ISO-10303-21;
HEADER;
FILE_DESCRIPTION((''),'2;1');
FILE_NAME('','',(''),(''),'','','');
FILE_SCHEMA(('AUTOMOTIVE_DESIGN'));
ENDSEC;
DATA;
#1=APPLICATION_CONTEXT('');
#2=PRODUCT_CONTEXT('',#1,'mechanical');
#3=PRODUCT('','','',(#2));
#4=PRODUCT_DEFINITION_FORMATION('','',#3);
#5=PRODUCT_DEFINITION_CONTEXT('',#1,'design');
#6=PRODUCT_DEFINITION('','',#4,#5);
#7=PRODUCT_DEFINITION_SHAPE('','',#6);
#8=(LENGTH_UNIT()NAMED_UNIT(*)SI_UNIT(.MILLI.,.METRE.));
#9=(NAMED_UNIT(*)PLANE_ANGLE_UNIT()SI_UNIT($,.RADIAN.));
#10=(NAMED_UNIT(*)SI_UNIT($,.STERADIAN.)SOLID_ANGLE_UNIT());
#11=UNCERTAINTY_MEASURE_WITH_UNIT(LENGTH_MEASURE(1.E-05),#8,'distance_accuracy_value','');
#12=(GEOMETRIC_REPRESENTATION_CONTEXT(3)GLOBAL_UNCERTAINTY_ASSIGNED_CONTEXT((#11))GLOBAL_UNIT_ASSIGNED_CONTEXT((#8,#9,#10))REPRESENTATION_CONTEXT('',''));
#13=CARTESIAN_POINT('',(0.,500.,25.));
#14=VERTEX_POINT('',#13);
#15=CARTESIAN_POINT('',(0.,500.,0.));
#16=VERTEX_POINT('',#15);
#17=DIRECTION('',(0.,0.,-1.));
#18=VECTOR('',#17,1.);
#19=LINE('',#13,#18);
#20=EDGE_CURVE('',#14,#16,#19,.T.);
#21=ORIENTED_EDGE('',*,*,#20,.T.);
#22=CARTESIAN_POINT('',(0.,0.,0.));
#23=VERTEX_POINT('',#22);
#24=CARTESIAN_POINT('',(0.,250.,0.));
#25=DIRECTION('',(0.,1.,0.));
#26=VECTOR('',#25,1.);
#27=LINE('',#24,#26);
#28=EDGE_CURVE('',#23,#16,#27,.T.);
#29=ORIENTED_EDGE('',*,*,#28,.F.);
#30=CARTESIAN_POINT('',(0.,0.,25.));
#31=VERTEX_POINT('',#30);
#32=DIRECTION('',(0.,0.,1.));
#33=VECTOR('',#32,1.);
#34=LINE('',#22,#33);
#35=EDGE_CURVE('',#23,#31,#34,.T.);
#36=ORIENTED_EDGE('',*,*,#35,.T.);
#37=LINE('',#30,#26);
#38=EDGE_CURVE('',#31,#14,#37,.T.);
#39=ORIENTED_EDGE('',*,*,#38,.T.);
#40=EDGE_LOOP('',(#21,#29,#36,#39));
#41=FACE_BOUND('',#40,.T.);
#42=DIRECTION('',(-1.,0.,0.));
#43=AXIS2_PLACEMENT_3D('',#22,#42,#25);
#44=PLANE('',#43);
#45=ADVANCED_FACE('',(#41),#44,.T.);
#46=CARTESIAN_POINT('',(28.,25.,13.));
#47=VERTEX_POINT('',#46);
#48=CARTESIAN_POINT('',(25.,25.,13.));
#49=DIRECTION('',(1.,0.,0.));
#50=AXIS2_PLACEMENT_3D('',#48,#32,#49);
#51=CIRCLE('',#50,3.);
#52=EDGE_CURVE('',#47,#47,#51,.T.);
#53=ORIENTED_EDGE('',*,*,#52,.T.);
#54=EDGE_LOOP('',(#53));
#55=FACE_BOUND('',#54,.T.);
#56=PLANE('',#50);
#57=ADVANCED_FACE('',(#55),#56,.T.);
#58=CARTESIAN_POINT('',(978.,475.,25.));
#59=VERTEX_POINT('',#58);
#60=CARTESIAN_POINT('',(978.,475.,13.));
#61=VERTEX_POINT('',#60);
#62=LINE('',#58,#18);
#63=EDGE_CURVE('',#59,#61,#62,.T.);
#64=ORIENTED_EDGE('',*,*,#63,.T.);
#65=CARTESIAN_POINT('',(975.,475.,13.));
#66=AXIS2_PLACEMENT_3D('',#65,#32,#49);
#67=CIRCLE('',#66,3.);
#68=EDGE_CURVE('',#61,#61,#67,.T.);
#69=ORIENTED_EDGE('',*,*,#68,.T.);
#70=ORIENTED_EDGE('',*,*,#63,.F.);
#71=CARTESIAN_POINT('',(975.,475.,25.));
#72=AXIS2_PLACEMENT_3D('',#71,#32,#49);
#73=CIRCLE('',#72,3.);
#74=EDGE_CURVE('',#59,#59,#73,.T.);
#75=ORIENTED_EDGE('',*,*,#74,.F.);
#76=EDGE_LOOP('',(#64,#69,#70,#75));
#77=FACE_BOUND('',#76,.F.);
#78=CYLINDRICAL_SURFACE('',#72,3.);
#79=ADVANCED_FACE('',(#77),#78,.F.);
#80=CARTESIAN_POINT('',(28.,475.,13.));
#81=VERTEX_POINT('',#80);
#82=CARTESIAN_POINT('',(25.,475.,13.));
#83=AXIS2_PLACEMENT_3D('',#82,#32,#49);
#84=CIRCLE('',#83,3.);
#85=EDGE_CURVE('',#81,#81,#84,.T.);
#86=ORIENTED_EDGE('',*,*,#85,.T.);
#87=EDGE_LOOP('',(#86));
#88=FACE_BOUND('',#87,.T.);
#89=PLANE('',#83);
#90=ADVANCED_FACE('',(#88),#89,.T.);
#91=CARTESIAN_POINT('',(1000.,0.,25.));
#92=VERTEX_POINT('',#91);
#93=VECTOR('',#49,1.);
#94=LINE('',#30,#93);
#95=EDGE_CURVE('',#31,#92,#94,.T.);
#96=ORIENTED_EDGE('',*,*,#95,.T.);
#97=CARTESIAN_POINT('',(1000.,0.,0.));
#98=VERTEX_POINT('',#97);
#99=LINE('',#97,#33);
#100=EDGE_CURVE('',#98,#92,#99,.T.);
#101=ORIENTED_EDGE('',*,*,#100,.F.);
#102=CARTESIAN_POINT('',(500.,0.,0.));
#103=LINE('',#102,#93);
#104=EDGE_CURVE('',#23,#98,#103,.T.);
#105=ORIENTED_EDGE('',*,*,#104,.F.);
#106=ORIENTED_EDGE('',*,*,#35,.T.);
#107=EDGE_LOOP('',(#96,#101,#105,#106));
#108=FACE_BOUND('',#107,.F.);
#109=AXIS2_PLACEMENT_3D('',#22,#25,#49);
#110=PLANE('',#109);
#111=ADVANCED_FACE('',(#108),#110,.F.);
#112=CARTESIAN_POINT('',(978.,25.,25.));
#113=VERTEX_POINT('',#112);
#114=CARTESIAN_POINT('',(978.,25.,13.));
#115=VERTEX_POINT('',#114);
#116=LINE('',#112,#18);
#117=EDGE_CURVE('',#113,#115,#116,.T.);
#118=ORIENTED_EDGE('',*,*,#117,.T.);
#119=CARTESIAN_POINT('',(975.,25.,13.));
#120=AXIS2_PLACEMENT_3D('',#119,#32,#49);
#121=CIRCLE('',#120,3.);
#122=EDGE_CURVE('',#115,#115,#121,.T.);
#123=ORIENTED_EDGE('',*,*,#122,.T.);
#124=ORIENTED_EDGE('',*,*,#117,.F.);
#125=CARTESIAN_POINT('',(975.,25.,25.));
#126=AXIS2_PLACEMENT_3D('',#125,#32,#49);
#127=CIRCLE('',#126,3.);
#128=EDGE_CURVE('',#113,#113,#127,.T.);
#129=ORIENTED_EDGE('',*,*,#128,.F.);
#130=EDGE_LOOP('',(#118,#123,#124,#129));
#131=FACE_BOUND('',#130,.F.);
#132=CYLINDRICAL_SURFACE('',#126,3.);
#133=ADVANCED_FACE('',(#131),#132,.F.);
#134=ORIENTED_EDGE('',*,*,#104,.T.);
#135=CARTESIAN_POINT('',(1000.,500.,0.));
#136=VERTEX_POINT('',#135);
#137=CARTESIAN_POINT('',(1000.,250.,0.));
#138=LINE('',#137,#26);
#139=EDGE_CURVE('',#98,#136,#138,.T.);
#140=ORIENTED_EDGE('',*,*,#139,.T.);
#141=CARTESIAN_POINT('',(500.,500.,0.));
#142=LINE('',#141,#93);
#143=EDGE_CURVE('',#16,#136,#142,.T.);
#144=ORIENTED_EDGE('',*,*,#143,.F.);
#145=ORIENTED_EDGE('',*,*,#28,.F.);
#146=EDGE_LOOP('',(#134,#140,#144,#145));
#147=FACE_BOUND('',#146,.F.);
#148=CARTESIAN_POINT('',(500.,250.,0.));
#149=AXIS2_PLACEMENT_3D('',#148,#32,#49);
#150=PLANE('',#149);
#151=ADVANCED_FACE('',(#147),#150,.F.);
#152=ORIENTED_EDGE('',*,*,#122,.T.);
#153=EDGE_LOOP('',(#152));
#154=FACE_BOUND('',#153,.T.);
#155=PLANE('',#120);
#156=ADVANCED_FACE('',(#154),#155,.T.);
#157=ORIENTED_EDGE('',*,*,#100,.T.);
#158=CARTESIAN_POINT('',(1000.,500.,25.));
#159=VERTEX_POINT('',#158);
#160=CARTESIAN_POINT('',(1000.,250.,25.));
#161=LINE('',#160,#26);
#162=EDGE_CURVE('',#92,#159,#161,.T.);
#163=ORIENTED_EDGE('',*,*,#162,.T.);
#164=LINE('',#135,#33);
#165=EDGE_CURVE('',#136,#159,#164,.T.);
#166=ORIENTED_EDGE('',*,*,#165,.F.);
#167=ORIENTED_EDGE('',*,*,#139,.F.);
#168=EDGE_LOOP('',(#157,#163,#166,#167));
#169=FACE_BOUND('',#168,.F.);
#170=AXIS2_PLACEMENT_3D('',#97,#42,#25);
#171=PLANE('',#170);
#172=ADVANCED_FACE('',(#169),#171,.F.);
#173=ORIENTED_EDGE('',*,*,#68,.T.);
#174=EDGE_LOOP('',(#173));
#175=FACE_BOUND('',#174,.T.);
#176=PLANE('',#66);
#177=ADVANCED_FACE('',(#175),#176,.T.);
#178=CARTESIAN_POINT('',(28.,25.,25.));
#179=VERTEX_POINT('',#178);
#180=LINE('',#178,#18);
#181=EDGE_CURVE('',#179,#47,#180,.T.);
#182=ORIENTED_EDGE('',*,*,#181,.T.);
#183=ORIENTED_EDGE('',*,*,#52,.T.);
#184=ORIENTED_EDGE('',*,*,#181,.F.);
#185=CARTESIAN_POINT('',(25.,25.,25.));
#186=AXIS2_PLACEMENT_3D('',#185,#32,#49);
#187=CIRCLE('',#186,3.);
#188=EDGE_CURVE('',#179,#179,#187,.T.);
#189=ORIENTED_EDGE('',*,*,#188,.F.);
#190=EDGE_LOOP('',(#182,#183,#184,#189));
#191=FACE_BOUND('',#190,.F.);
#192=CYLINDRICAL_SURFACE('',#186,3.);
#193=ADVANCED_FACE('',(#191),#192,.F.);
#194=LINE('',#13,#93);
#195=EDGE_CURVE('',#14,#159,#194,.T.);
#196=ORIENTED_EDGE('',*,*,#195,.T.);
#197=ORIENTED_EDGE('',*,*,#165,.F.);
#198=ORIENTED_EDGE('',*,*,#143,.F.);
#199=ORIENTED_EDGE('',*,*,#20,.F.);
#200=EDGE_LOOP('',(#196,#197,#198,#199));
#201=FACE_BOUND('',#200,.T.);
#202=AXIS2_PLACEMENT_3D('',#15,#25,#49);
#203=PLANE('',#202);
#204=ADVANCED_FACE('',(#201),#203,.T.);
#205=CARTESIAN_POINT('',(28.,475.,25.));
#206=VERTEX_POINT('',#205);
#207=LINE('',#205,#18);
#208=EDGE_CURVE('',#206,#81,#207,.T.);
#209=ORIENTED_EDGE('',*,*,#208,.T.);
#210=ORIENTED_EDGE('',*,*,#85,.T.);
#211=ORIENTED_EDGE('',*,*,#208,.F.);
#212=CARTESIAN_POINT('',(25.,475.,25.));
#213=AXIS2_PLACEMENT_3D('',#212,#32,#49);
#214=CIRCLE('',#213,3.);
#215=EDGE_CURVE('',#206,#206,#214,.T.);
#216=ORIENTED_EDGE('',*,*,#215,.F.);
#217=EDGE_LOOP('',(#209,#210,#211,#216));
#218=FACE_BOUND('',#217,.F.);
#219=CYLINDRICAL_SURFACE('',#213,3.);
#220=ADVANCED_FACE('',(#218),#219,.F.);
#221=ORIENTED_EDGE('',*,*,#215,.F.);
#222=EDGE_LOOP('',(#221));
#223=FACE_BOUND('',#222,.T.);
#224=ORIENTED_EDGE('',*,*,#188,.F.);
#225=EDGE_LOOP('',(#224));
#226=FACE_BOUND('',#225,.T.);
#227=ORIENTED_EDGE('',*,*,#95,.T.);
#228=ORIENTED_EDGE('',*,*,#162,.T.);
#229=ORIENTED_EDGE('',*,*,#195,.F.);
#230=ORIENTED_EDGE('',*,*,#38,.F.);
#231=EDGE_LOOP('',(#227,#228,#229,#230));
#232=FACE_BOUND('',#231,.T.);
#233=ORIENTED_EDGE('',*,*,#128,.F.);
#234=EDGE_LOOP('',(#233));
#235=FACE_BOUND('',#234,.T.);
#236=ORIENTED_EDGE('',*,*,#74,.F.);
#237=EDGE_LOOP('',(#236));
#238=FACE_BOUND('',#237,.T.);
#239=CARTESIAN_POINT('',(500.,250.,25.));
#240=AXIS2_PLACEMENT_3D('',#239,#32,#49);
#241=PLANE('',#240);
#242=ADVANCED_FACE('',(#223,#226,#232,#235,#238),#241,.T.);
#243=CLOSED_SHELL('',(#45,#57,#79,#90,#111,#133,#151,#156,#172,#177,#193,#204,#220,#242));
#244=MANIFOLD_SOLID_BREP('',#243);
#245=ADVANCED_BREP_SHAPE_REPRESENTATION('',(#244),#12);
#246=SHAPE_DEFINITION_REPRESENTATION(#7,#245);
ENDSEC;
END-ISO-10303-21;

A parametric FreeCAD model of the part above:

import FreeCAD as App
import Part
import Sketcher

V = App.Vector

doc = App.newDocument("Part")
params = doc.addObject("Spreadsheet::Sheet", "Params")
for row, (alias, value) in enumerate([
    ("sketch1_width", "1000 mm"),
    ("sketch1_height", "500 mm"),
    ("pad1_length", "25 mm"),
    ("sketch2_width", "50 mm"),
    ("pad2_length", "24 mm"),
    ("sketch3_diameter", "6 mm"),
    ("pocket1_length", "12 mm"),
    ("sketch4_diameter", "6 mm"),
    ("pocket2_length", "12 mm"),
], start=1):
    params.set(f"A{row}", alias)
    params.set(f"B{row}", "=" + value)
    params.setAlias(f"B{row}", alias)

body = doc.addObject("PartDesign::Body", "Body")

sketch1 = body.newObject("Sketcher::SketchObject", "Sketch")
sketch1.AttachmentSupport = (doc.getObject("XY_Plane"), [""])
sketch1.MapMode = "FlatFace"
sketch1.addGeometry([
    Part.LineSegment(V(0, 500, 0), V(0, 0, 0)),
    Part.LineSegment(V(0, 0, 0), V(1000, 0, 0)),
    Part.LineSegment(V(1000, 0, 0), V(1000, 500, 0)),
    Part.LineSegment(V(1000, 500, 0), V(0, 500, 0)),
], False)
sketch1.addConstraint([
    Sketcher.Constraint("Coincident", 0, 2, 1, 1),
    Sketcher.Constraint("Coincident", 1, 2, 2, 1),
    Sketcher.Constraint("Coincident", 2, 2, 3, 1),
    Sketcher.Constraint("Coincident", 3, 2, 0, 1),
    Sketcher.Constraint("Vertical", 0),
    Sketcher.Constraint("Horizontal", 1),
    Sketcher.Constraint("Vertical", 2),
    Sketcher.Constraint("Horizontal", 3),
    Sketcher.Constraint("Coincident", 0, 2, -1, 1),
    Sketcher.Constraint("DistanceX", 1, 1, 1, 2, 1000.0),
    Sketcher.Constraint("DistanceY", 0, 2, 0, 1, 500.0),
])
sketch1.setExpression("Constraints[9]", "Params.sketch1_width")
sketch1.setExpression("Constraints[10]", "Params.sketch1_height")
pad1 = body.newObject("PartDesign::Pad", "Pad")
pad1.Profile = sketch1
pad1.setExpression("Length", "Params.pad1_length")

sketch2 = body.newObject("Sketcher::SketchObject", "Sketch001")
sketch2.AttachmentSupport = (doc.getObject("XY_Plane"), [""])
sketch2.MapMode = "FlatFace"
sketch2.AttachmentOffset = App.Placement(V(0, 0, 25), App.Rotation())
sketch2.addGeometry([
    Part.LineSegment(V(0, 500, 0), V(0, 450, 0)),
    Part.LineSegment(V(0, 450, 0), V(50, 450, 0)),
    Part.LineSegment(V(50, 450, 0), V(50, 500, 0)),
    Part.LineSegment(V(50, 500, 0), V(0, 500, 0)),
    Part.LineSegment(V(0, 50, 0), V(0, 0, 0)),
    Part.LineSegment(V(0, 0, 0), V(50, 0, 0)),
    Part.LineSegment(V(50, 0, 0), V(50, 50, 0)),
    Part.LineSegment(V(50, 50, 0), V(0, 50, 0)),
], False)
sketch2.addConstraint([
    Sketcher.Constraint("Coincident", 0, 2, 1, 1),
    Sketcher.Constraint("Coincident", 1, 2, 2, 1),
    Sketcher.Constraint("Coincident", 2, 2, 3, 1),
    Sketcher.Constraint("Coincident", 3, 2, 0, 1),
    Sketcher.Constraint("Coincident", 4, 2, 5, 1),
    Sketcher.Constraint("Coincident", 5, 2, 6, 1),
    Sketcher.Constraint("Coincident", 6, 2, 7, 1),
    Sketcher.Constraint("Coincident", 7, 2, 4, 1),
    Sketcher.Constraint("Vertical", 0),
    Sketcher.Constraint("Horizontal", 1),
    Sketcher.Constraint("Vertical", 2),
    Sketcher.Constraint("Horizontal", 3),
    Sketcher.Constraint("Vertical", 4),
    Sketcher.Constraint("Horizontal", 5),
    Sketcher.Constraint("Vertical", 6),
    Sketcher.Constraint("Horizontal", 7),
    Sketcher.Constraint("Coincident", 4, 2, -1, 1),
    Sketcher.Constraint("PointOnObject", 0, 2, -2),
    Sketcher.Constraint("Vertical", 2, 2, 5, 2),
    Sketcher.Constraint("Equal", 7, 0),
    Sketcher.Constraint("Equal", 2, 4),
    Sketcher.Constraint("DistanceX", 1, 1, 1, 2, 50.0),
    Sketcher.Constraint("DistanceY", -1, 1, 0, 2, 450.0),
])
sketch2.setExpression("Constraints[21]", "Params.sketch2_width")
pad2 = body.newObject("PartDesign::Pad", "Pad001")
pad2.Profile = sketch2
pad2.setExpression("Length", "Params.pad2_length")
pad2.Reversed = True

sketch3 = body.newObject("Sketcher::SketchObject", "Sketch002")
sketch3.AttachmentSupport = (doc.getObject("XY_Plane"), [""])
sketch3.MapMode = "FlatFace"
sketch3.AttachmentOffset = App.Placement(V(0, 0, 25), App.Rotation())
sketch3.addGeometry([
    Part.Circle(V(975, 475, 0), V(0, 0, 1), 3),
    Part.Circle(V(975, 25, 0), V(0, 0, 1), 3),
], False)
sketch3.addConstraint([
    Sketcher.Constraint("Equal", 0, 1),
    Sketcher.Constraint("Vertical", 0, 3, 1, 3),
    Sketcher.Constraint("Diameter", 0, 6.0),
    Sketcher.Constraint("DistanceX", -1, 1, 0, 3, 975.0),
    Sketcher.Constraint("DistanceY", -1, 1, 0, 3, 475.0),
    Sketcher.Constraint("DistanceY", -1, 1, 1, 3, 25.0),
])
sketch3.setExpression("Constraints[2]", "Params.sketch3_diameter")
pocket1 = body.newObject("PartDesign::Pocket", "Pocket")
pocket1.Profile = sketch3
pocket1.setExpression("Length", "Params.pocket1_length")

sketch4 = body.newObject("Sketcher::SketchObject", "Sketch003")
sketch4.AttachmentSupport = (doc.getObject("XY_Plane"), [""])
sketch4.MapMode = "FlatFace"
sketch4.AttachmentOffset = App.Placement(V(0, 0, 25), App.Rotation())
sketch4.addGeometry([
    Part.Circle(V(25, 475, 0), V(0, 0, 1), 3),
    Part.Circle(V(25, 25, 0), V(0, 0, 1), 3),
], False)
sketch4.addConstraint([
    Sketcher.Constraint("Equal", 0, 1),
    Sketcher.Constraint("Vertical", 0, 3, 1, 3),
    Sketcher.Constraint("Diameter", 0, 6.0),
    Sketcher.Constraint("DistanceX", -1, 1, 0, 3, 25.0),
    Sketcher.Constraint("DistanceY", -1, 1, 0, 3, 475.0),
    Sketcher.Constraint("DistanceY", -1, 1, 1, 3, 25.0),
])
sketch4.setExpression("Constraints[2]", "Params.sketch4_diameter")
pocket2 = body.newObject("PartDesign::Pocket", "Pocket001")
pocket2.Profile = sketch4
pocket2.setExpression("Length", "Params.pocket2_length")

doc.recompute()
